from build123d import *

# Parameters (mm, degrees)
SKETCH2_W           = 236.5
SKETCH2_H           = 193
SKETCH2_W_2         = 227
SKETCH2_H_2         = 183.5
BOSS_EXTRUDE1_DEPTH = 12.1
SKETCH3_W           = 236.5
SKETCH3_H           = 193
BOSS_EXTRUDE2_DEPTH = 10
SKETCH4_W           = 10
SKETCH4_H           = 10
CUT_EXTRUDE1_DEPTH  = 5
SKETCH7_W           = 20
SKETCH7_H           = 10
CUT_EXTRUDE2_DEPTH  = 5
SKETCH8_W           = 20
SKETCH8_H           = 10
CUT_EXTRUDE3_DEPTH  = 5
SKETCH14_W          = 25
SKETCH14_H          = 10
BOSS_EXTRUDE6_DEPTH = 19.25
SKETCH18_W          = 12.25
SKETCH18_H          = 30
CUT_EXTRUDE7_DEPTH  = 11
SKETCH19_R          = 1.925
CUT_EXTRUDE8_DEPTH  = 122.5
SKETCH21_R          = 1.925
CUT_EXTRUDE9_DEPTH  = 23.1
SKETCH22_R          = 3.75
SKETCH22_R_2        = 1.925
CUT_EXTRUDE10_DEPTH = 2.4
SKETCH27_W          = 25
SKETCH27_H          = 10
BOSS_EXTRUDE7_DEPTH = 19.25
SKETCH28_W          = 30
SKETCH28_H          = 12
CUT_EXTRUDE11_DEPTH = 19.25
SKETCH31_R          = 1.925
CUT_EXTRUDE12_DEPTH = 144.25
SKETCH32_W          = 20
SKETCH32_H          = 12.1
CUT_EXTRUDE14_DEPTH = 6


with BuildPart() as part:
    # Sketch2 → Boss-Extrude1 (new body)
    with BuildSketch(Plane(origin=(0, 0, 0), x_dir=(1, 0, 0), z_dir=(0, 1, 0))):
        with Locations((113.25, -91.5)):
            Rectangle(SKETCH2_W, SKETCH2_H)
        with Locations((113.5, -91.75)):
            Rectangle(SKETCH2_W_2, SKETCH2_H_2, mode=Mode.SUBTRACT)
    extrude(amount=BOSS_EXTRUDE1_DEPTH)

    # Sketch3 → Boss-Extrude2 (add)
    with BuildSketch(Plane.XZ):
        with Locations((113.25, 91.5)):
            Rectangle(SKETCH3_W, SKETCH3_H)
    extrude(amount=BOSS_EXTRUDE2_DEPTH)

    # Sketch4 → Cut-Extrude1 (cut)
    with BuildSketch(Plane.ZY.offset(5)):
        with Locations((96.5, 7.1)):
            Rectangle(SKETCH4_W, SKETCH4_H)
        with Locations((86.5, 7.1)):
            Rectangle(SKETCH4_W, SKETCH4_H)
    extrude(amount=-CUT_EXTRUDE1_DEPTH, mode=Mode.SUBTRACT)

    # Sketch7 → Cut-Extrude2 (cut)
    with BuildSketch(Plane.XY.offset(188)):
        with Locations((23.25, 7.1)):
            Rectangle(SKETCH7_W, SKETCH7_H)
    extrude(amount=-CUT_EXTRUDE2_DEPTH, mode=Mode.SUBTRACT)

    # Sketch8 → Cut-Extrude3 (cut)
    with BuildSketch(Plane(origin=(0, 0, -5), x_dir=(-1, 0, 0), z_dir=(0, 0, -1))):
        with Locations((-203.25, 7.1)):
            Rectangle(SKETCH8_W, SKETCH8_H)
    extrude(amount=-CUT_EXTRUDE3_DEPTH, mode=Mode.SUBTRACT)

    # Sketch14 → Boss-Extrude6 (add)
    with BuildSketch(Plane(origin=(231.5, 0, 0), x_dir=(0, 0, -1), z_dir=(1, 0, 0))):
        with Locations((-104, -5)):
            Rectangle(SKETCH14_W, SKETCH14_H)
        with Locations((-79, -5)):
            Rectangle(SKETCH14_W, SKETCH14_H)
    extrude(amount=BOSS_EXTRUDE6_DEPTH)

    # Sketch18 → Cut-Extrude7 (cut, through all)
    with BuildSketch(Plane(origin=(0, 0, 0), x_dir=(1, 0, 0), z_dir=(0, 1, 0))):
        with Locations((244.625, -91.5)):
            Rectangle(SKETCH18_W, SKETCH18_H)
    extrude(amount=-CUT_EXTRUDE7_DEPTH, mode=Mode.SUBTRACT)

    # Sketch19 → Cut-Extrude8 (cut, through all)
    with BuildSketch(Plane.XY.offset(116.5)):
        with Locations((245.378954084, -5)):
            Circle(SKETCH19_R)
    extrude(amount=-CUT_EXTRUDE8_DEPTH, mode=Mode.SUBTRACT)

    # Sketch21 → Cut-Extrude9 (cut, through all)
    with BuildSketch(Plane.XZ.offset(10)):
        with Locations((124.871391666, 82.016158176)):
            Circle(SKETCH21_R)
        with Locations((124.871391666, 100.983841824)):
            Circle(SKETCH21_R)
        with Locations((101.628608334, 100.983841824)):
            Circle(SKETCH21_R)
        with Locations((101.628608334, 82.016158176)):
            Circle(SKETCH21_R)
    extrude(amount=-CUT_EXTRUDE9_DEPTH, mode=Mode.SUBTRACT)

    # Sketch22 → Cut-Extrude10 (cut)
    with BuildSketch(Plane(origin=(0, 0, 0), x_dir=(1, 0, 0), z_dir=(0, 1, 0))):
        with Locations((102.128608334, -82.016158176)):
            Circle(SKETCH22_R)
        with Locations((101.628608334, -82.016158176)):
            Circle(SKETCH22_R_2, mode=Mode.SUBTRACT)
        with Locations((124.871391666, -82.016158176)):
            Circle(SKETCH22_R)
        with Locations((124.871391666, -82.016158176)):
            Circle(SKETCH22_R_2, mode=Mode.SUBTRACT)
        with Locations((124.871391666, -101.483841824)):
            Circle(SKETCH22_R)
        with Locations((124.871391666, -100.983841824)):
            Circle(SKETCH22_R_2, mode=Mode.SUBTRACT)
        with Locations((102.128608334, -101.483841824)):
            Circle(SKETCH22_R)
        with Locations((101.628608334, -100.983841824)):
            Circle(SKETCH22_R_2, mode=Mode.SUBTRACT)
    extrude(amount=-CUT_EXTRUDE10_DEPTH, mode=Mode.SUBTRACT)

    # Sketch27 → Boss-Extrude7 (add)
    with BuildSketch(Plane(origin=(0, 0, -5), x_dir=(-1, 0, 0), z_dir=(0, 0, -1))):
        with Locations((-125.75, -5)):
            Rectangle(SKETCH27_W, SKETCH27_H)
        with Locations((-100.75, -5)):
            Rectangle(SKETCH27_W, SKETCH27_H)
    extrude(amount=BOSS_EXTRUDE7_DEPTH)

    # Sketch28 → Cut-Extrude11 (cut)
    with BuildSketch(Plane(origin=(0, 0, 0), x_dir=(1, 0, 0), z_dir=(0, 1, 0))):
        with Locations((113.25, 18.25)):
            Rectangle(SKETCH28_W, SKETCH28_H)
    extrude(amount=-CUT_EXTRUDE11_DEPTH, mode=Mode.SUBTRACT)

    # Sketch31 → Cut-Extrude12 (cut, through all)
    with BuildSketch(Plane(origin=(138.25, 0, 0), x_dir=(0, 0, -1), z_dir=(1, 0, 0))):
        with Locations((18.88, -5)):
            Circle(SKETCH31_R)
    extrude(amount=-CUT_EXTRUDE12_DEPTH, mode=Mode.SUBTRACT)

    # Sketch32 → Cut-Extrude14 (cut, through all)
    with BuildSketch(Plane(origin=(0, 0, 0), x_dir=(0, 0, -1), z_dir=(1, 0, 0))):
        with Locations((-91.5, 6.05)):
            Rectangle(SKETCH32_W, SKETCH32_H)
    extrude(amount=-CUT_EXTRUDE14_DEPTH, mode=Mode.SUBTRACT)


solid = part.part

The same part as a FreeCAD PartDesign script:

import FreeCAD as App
import Part
import Sketcher

V = App.Vector
Q = App.Units.Quantity


def add_polygon(sketch, points):
    """Adds a closed chain of lines whose ends are joined by coincident constraints."""
    first, n = sketch.GeometryCount, len(points)
    for a, b in zip(points, points[1:] + points[:1]):
        sketch.addGeometry(Part.LineSegment(App.Vector(*a, 0), App.Vector(*b, 0)), False)
    for i in range(n):
        sketch.addConstraint(Sketcher.Constraint("Coincident", first + i, 2, first + (i + 1) % n, 1))

doc = App.newDocument("Part")
body = doc.addObject("PartDesign::Body", "Body")

sketch1 = body.newObject("Sketcher::SketchObject", "Sketch")
sketch1.AttachmentSupport = (doc.getObject("XZ_Plane"), [""])
sketch1.MapMode = "FlatFace"
add_polygon(sketch1, [(-5, -5), (-5, 188), (232, 188), (232, -5)])
add_polygon(sketch1, [(227, 184), (0, 184), (0, 0), (227, 0)])
sketch1.addConstraint([
    Sketcher.Constraint("Vertical", 0),
    Sketcher.Constraint("Horizontal", 1),
    Sketcher.Constraint("Vertical", 2),
    Sketcher.Constraint("Horizontal", 3),
    Sketcher.Constraint("Horizontal", 4),
    Sketcher.Constraint("Vertical", 5),
    Sketcher.Constraint("Horizontal", 6),
    Sketcher.Constraint("Vertical", 7),
    Sketcher.Constraint("Coincident", 5, 2, -1, 1),
    Sketcher.Constraint("DistanceX", 4, 2, 4, 1, Q("227 mm")),
    Sketcher.Constraint("DistanceY", 0, 1, 0, 2, Q("193 mm")),
    Sketcher.Constraint("DistanceX", 1, 1, 1, 2, Q("236.5 mm")),
    Sketcher.Constraint("DistanceY", 5, 2, 5, 1, Q("183.5 mm")),
    Sketcher.Constraint("DistanceX", 0, 2, -1, 1, Q("5 mm")),
    Sketcher.Constraint("DistanceY", -1, 1, 0, 2, Q("188 mm")),
])
pad1 = body.newObject("PartDesign::Pad", "Pad")
pad1.Profile = sketch1
pad1.Length = 12.1
pad1.Reversed = True

sketch2 = body.newObject("Sketcher::SketchObject", "Sketch001")
sketch2.AttachmentSupport = (doc.getObject("XZ_Plane"), [""])
sketch2.MapMode = "FlatFace"
add_polygon(sketch2, [(-5, 188), (-5, -5), (232, -5), (232, 188)])
sketch2.addConstraint([
    Sketcher.Constraint("Vertical", 0),
    Sketcher.Constraint("Horizontal", 1),
    Sketcher.Constraint("Vertical", 2),
    Sketcher.Constraint("Horizontal", 3),
    Sketcher.Constraint("DistanceY", 0, 2, 0, 1, Q("193 mm")),
    Sketcher.Constraint("DistanceX", 1, 1, 1, 2, Q("236.5 mm")),
    Sketcher.Constraint("DistanceX", 0, 2, -1, 1, Q("5 mm")),
    Sketcher.Constraint("DistanceY", 0, 2, -1, 1, Q("5 mm")),
])
pad2 = body.newObject("PartDesign::Pad", "Pad001")
pad2.Profile = sketch2
pad2.Length = 10

sketch3 = body.newObject("Sketcher::SketchObject", "Sketch002")
sketch3.AttachmentSupport = (doc.getObject("YZ_Plane"), [""])
sketch3.MapMode = "FlatFace"
sketch3.AttachmentOffset = App.Placement(V(0, 0, -5), App.Rotation())
add_polygon(sketch3, [(2, 102), (12, 102), (12, 82), (2, 82)])
sketch3.addConstraint([
    Sketcher.Constraint("Horizontal", 0),
    Sketcher.Constraint("Vertical", 1),
    Sketcher.Constraint("Horizontal", 2),
    Sketcher.Constraint("Vertical", 3),
    Sketcher.Constraint("DistanceX", 0, 1, 0, 2, Q("10 mm")),
    Sketcher.Constraint("DistanceY", 1, 2, 1, 1, Q("20 mm")),
    Sketcher.Constraint("DistanceX", -1, 1, 0, 2, Q("12.1 mm")),
    Sketcher.Constraint("DistanceY", -1, 1, 0, 2, Q("101.5 mm")),
])
pocket1 = body.newObject("PartDesign::Pocket", "Pocket")
pocket1.Profile = sketch3
pocket1.Length = 5
pocket1.Reversed = True

sketch4 = body.newObject("Sketcher::SketchObject", "Sketch003")
sketch4.AttachmentSupport = (doc.getObject("XY_Plane"), [""])
sketch4.MapMode = "FlatFace"
sketch4.AttachmentOffset = App.Placement(V(0, 0, 188), App.Rotation())
add_polygon(sketch4, [(13, 12), (13, 2), (33, 2), (33, 12)])
sketch4.addConstraint([
    Sketcher.Constraint("Vertical", 0),
    Sketcher.Constraint("Horizontal", 1),
    Sketcher.Constraint("Vertical", 2),
    Sketcher.Constraint("Horizontal", 3),
    Sketcher.Constraint("DistanceX", 1, 1, 1, 2, Q("20 mm")),
    Sketcher.Constraint("DistanceY", 0, 2, 0, 1, Q("10 mm")),
    Sketcher.Constraint("DistanceY", -1, 1, 0, 2, Q("2.1 mm")),
    Sketcher.Constraint("DistanceX", -1, 1, 0, 2, Q("13.25 mm")),
])
pocket2 = body.newObject("PartDesign::Pocket", "Pocket001")
pocket2.Profile = sketch4
pocket2.Length = 5

sketch5 = body.newObject("Sketcher::SketchObject", "Sketch004")
sketch5.AttachmentSupport = (doc.getObject("XY_Plane"), [""])
sketch5.MapMode = "FlatFace"
sketch5.AttachmentOffset = App.Placement(V(0, 0, -5), App.Rotation())
add_polygon(sketch5, [(213, 12), (213, 2), (193, 2), (193, 12)])
sketch5.addConstraint([
    Sketcher.Constraint("Vertical", 0),
    Sketcher.Constraint("Horizontal", 1),
    Sketcher.Constraint("Vertical", 2),
    Sketcher.Constraint("Horizontal", 3),
    Sketcher.Constraint("DistanceX", 1, 2, 1, 1, Q("20 mm")),
    Sketcher.Constraint("DistanceY", 0, 2, 0, 1, Q("10 mm")),
    Sketcher.Constraint("DistanceY", -1, 1, 0, 2, Q("2.1 mm")),
    Sketcher.Constraint("DistanceX", -1, 1, 0, 2, Q("213.25 mm")),
])
pocket3 = body.newObject("PartDesign::Pocket", "Pocket002")
pocket3.Profile = sketch5
pocket3.Length = 5
pocket3.Reversed = True

sketch6 = body.newObject("Sketcher::SketchObject", "Sketch005")
sketch6.AttachmentSupport = (doc.getObject("YZ_Plane"), [""])
sketch6.MapMode = "FlatFace"
sketch6.AttachmentOffset = App.Placement(V(0, 0, 231.5), App.Rotation())
add_polygon(sketch6, [(0, 116), (-10, 116), (-10, 66), (0, 66)])
sketch6.addConstraint([
    Sketcher.Constraint("Horizontal", 0),
    Sketcher.Constraint("Vertical", 1),
    Sketcher.Constraint("Horizontal", 2),
    Sketcher.Constraint("Vertical", 3),
    Sketcher.Constraint("PointOnObject", 2, 2, -2),
    Sketcher.Constraint("DistanceX", 0, 2, 0, 1, Q("10 mm")),
    Sketcher.Constraint("DistanceY", 1, 2, 1, 1, Q("50 mm")),
    Sketcher.Constraint("DistanceY", -1, 1, 0, 2, Q("116.5 mm")),
])
pad3 = body.newObject("PartDesign::Pad", "Pad002")
pad3.Profile = sketch6
pad3.Length = 19.25

sketch7 = body.newObject("Sketcher::SketchObject", "Sketch006")
sketch7.AttachmentSupport = (doc.getObject("XZ_Plane"), [""])
sketch7.MapMode = "FlatFace"
add_polygon(sketch7, [(238, 76), (238, 106), (251, 106), (251, 76)])
sketch7.addConstraint([
    Sketcher.Constraint("Vertical", 0),
    Sketcher.Constraint("Horizontal", 1),
    Sketcher.Constraint("Vertical", 2),
    Sketcher.Constraint("Horizontal", 3),
    Sketcher.Constraint("DistanceY", 0, 1, 0, 2, Q("30 mm")),
    Sketcher.Constraint("DistanceX", 1, 1, 1, 2, Q("12.25 mm")),
    Sketcher.Constraint("DistanceX", -1, 1, 0, 2, Q("238.5 mm")),
    Sketcher.Constraint("DistanceY", -1, 1, 0, 2, Q("106.5 mm")),
])
pocket4 = body.newObject("PartDesign::Pocket", "Pocket003")
pocket4.Profile = sketch7
pocket4.Type = "ThroughAll"
pocket4.Reversed = True

sketch8 = body.newObject("Sketcher::SketchObject", "Sketch007")
sketch8.AttachmentSupport = (doc.getObject("XY_Plane"), [""])
sketch8.MapMode = "FlatFace"
sketch8.AttachmentOffset = App.Placement(V(0, 0, 116.5), App.Rotation())
sketch8.addGeometry(Part.Circle(V(245.4, -5, 0), V(0, 0, 1), 1.9), False)
sketch8.addConstraint([
    Sketcher.Constraint("Diameter", 0, Q("3.85 mm")),
    Sketcher.Constraint("DistanceY", 0, 3, -1, 1, Q("5 mm")),
    Sketcher.Constraint("DistanceX", -1, 1, 0, 3, Q("245.378954 mm")),
])
pocket5 = body.newObject("PartDesign::Pocket", "Pocket004")
pocket5.Profile = sketch8
pocket5.Type = "ThroughAll"

sketch9 = body.newObject("Sketcher::SketchObject", "Sketch008")
sketch9.AttachmentSupport = (doc.getObject("XZ_Plane"), [""])
sketch9.MapMode = "FlatFace"
sketch9.AttachmentOffset = App.Placement(V(0, 0, 10), App.Rotation())
sketch9.addGeometry([
    Part.Circle(V(124.9, 82, 0), V(0, 0, 1), 1.9),
    Part.Circle(V(124.9, 101, 0), V(0, 0, 1), 1.9),
    Part.Circle(V(101.6, 101, 0), V(0, 0, 1), 1.9),
    Part.Circle(V(101.6, 82, 0), V(0, 0, 1), 1.9),
], False)
sketch9.addConstraint([
    Sketcher.Constraint("Equal", 0, 1),
    Sketcher.Constraint("Equal", 1, 2),
    Sketcher.Constraint("Equal", 2, 3),
    Sketcher.Constraint("Horizontal", 1, 3, 2, 3),
    Sketcher.Constraint("Horizontal", 0, 3, 3, 3),
    Sketcher.Constraint("Vertical", 0, 3, 1, 3),
    Sketcher.Constraint("Vertical", 2, 3, 3, 3),
    Sketcher.Constraint("Diameter", 0, Q("3.85 mm")),
    Sketcher.Constraint("DistanceX", -1, 1, 0, 3, Q("124.871392 mm")),
    Sketcher.Constraint("DistanceY", -1, 1, 0, 3, Q("82.016158 mm")),
    Sketcher.Constraint("DistanceY", -1, 1, 1, 3, Q("100.983842 mm")),
    Sketcher.Constraint("DistanceX", -1, 1, 2, 3, Q("101.628608 mm")),
])
pocket6 = body.newObject("PartDesign::Pocket", "Pocket005")
pocket6.Profile = sketch9
pocket6.Type = "ThroughAll"

sketch10 = body.newObject("Sketcher::SketchObject", "Sketch009")
sketch10.AttachmentSupport = (doc.getObject("XZ_Plane"), [""])
sketch10.MapMode = "FlatFace"
sketch10.addGeometry([
    Part.Circle(V(102.1, 82, 0), V(0, 0, 1), 3.8),
    Part.Circle(V(101.6, 82, 0), V(0, 0, 1), 1.9),
    Part.Circle(V(124.9, 82, 0), V(0, 0, 1), 3.8),
    Part.Circle(V(124.9, 82, 0), V(0, 0, 1), 1.9),
    Part.Circle(V(124.9, 101.5, 0), V(0, 0, 1), 3.8),
    Part.Circle(V(124.9, 101, 0), V(0, 0, 1), 1.9),
    Part.Circle(V(102.1, 101.5, 0), V(0, 0, 1), 3.8),
    Part.Circle(V(101.6, 101, 0), V(0, 0, 1), 1.9),
], False)
sketch10.addConstraint([
    Sketcher.Constraint("Coincident", 3, 3, 2, 3),
    Sketcher.Constraint("Equal", 0, 2),
    Sketcher.Constraint("Equal", 1, 3),
    Sketcher.Constraint("Equal", 2, 4),
    Sketcher.Constraint("Equal", 3, 5),
    Sketcher.Constraint("Equal", 4, 6),
    Sketcher.Constraint("Equal", 5, 7),
    Sketcher.Constraint("Horizontal", 0, 3, 1, 3),
    Sketcher.Constraint("Horizontal", 1, 3, 2, 3),
    Sketcher.Constraint("Horizontal", 4, 3, 6, 3),
    Sketcher.Constraint("Horizontal", 5, 3, 7, 3),
    Sketcher.Constraint("Vertical", 3, 3, 4, 3),
    Sketcher.Constraint("Vertical", 4, 3, 5, 3),
    Sketcher.Constraint("Vertical", 0, 3, 6, 3),
    Sketcher.Constraint("Vertical", 1, 3, 7, 3),
    Sketcher.Constraint("Diameter", 0, Q("7.5 mm")),
    Sketcher.Constraint("Diameter", 1, Q("3.85 mm")),
    Sketcher.Constraint("DistanceX", 1, 3, 0, 3, Q("0.5 mm")),
    Sketcher.Constraint("DistanceY", 5, 3, 4, 3, Q("0.5 mm")),
    Sketcher.Constraint("DistanceX", -1, 1, 0, 3, Q("102.128608 mm")),
    Sketcher.Constraint("DistanceY", -1, 1, 0, 3, Q("82.016158 mm")),
    Sketcher.Constraint("DistanceX", -1, 1, 2, 3, Q("124.871392 mm")),
    Sketcher.Constraint("DistanceY", -1, 1, 4, 3, Q("101.483842 mm")),
])
pocket7 = body.newObject("PartDesign::Pocket", "Pocket006")
pocket7.Profile = sketch10
pocket7.Length = 2.4
pocket7.Reversed = True

sketch11 = body.newObject("Sketcher::SketchObject", "Sketch010")
sketch11.AttachmentSupport = (doc.getObject("XY_Plane"), [""])
sketch11.MapMode = "FlatFace"
sketch11.AttachmentOffset = App.Placement(V(0, 0, -5), App.Rotation())
add_polygon(sketch11, [(138, 0), (138, -10), (88, -10), (88, 0)])
sketch11.addConstraint([
    Sketcher.Constraint("Vertical", 0),
    Sketcher.Constraint("Horizontal", 1),
    Sketcher.Constraint("Vertical", 2),
    Sketcher.Constraint("Horizontal", 3),
    Sketcher.Constraint("PointOnObject", 2, 2, -1),
    Sketcher.Constraint("DistanceX", 1, 2, 1, 1, Q("50 mm")),
    Sketcher.Constraint("DistanceY", 0, 2, 0, 1, Q("10 mm")),
    Sketcher.Constraint("DistanceX", -1, 1, 0, 2, Q("138.25 mm")),
])
pad4 = body.newObject("PartDesign::Pad", "Pad003")
pad4.Profile = sketch11
pad4.Length = 19.25
pad4.Reversed = True

sketch12 = body.newObject("Sketcher::SketchObject", "Sketch011")
sketch12.AttachmentSupport = (doc.getObject("XZ_Plane"), [""])
sketch12.MapMode = "FlatFace"
add_polygon(sketch12, [(98, -24), (98, -12), (128, -12), (128, -24)])
sketch12.addConstraint([
    Sketcher.Constraint("Vertical", 0),
    Sketcher.Constraint("Horizontal", 1),
    Sketcher.Constraint("Vertical", 2),
    Sketcher.Constraint("Horizontal", 3),
    Sketcher.Constraint("DistanceX", 1, 1, 1, 2, Q("30 mm")),
    Sketcher.Constraint("DistanceY", 0, 1, 0, 2, Q("12 mm")),
    Sketcher.Constraint("DistanceX", -1, 1, 0, 2, Q("98.25 mm")),
    Sketcher.Constraint("DistanceY", 0, 2, -1, 1, Q("12.25 mm")),
])
pocket8 = body.newObject("PartDesign::Pocket", "Pocket007")
pocket8.Profile = sketch12
pocket8.Length = 19.25
pocket8.Reversed = True

sketch13 = body.newObject("Sketcher::SketchObject", "Sketch012")
sketch13.AttachmentSupport = (doc.getObject("YZ_Plane"), [""])
sketch13.MapMode = "FlatFace"
sketch13.AttachmentOffset = App.Placement(V(0, 0, 138.25), App.Rotation())
sketch13.addGeometry(Part.Circle(V(-5, -18.9, 0), V(0, 0, 1), 1.9), False)
sketch13.addConstraint([
    Sketcher.Constraint("Diameter", 0, Q("3.85 mm")),
    Sketcher.Constraint("DistanceX", 0, 3, -1, 1, Q("5 mm")),
    Sketcher.Constraint("DistanceY", 0, 3, -1, 1, Q("18.88 mm")),
])
pocket9 = body.newObject("PartDesign::Pocket", "Pocket008")
pocket9.Profile = sketch13
pocket9.Type = "ThroughAll"

sketch14 = body.newObject("Sketcher::SketchObject", "Sketch013")
sketch14.AttachmentSupport = (doc.getObject("YZ_Plane"), [""])
sketch14.MapMode = "FlatFace"
add_polygon(sketch14, [(12, 102), (0, 102), (0, 82), (12, 82)])
sketch14.addConstraint([
    Sketcher.Constraint("Horizontal", 0),
    Sketcher.Constraint("Vertical", 1),
    Sketcher.Constraint("Horizontal", 2),
    Sketcher.Constraint("Vertical", 3),
    Sketcher.Constraint("PointOnObject", 0, 2, -2),
    Sketcher.Constraint("DistanceY", 1, 2, 1, 1, Q("20 mm")),
    Sketcher.Constraint("DistanceX", 0, 2, 0, 1, Q("12.1 mm")),
    Sketcher.Constraint("DistanceY", -1, 1, 0, 2, Q("101.5 mm")),
])
pocket10 = body.newObject("PartDesign::Pocket", "Pocket009")
pocket10.Profile = sketch14
pocket10.Type = "ThroughAll"

doc.recompute()
